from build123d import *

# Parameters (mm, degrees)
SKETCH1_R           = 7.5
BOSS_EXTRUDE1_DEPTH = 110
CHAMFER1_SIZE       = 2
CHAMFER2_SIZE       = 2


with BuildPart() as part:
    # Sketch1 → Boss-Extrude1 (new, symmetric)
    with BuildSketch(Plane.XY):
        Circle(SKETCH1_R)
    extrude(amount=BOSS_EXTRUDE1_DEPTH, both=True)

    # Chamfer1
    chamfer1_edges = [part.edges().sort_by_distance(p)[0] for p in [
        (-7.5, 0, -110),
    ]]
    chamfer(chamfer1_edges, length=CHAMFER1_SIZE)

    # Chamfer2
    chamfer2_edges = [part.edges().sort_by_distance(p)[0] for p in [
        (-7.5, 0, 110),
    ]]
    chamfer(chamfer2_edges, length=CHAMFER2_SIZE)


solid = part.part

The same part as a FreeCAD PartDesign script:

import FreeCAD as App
import Part
import Sketcher
from FreeCAD import Vector


def edges_at(feature, points):
    """Names of the edges that pass closest to the given points."""
    edges = feature.Shape.Edges
    near = lambda p: min(range(len(edges)), key=lambda i: edges[i].distToShape(Part.Vertex(*p))[0])
    return sorted({f"Edge{near(p) + 1}" for p in points})

doc = App.newDocument("Part")
body = doc.addObject("PartDesign::Body", "Body")

# Sketch on XY plane
sketch1 = body.newObject("Sketcher::SketchObject", "Sketch")
sketch1.AttachmentSupport = (doc.getObject("XY_Plane"), [""])
sketch1.MapMode = "FlatFace"
sketch1.addGeometry(Part.Circle(Vector(0, 0, 0), Vector(0, 0, 1), 8), False)
sketch1.addConstraint(Sketcher.Constraint("Coincident", 0, 3, -1, 1))
sketch1.addConstraint(Sketcher.Constraint("Diameter", 0, 15.0))
pad1 = body.newObject("PartDesign::Pad", "Pad")
pad1.Profile = sketch1
pad1.Length = 220
pad1.Midplane = True
doc.recompute()

chamfer = body.newObject("PartDesign::Chamfer", "Chamfer")
chamfer.Base = (pad1, edges_at(pad1, [(-7.5, 0, -110)]))
chamfer.Size = 2
doc.recompute()

chamfer2 = body.newObject("PartDesign::Chamfer", "Chamfer001")
chamfer2.Base = (chamfer, edges_at(chamfer, [(-7.5, 0, 110)]))
chamfer2.Size = 2

doc.recompute()
